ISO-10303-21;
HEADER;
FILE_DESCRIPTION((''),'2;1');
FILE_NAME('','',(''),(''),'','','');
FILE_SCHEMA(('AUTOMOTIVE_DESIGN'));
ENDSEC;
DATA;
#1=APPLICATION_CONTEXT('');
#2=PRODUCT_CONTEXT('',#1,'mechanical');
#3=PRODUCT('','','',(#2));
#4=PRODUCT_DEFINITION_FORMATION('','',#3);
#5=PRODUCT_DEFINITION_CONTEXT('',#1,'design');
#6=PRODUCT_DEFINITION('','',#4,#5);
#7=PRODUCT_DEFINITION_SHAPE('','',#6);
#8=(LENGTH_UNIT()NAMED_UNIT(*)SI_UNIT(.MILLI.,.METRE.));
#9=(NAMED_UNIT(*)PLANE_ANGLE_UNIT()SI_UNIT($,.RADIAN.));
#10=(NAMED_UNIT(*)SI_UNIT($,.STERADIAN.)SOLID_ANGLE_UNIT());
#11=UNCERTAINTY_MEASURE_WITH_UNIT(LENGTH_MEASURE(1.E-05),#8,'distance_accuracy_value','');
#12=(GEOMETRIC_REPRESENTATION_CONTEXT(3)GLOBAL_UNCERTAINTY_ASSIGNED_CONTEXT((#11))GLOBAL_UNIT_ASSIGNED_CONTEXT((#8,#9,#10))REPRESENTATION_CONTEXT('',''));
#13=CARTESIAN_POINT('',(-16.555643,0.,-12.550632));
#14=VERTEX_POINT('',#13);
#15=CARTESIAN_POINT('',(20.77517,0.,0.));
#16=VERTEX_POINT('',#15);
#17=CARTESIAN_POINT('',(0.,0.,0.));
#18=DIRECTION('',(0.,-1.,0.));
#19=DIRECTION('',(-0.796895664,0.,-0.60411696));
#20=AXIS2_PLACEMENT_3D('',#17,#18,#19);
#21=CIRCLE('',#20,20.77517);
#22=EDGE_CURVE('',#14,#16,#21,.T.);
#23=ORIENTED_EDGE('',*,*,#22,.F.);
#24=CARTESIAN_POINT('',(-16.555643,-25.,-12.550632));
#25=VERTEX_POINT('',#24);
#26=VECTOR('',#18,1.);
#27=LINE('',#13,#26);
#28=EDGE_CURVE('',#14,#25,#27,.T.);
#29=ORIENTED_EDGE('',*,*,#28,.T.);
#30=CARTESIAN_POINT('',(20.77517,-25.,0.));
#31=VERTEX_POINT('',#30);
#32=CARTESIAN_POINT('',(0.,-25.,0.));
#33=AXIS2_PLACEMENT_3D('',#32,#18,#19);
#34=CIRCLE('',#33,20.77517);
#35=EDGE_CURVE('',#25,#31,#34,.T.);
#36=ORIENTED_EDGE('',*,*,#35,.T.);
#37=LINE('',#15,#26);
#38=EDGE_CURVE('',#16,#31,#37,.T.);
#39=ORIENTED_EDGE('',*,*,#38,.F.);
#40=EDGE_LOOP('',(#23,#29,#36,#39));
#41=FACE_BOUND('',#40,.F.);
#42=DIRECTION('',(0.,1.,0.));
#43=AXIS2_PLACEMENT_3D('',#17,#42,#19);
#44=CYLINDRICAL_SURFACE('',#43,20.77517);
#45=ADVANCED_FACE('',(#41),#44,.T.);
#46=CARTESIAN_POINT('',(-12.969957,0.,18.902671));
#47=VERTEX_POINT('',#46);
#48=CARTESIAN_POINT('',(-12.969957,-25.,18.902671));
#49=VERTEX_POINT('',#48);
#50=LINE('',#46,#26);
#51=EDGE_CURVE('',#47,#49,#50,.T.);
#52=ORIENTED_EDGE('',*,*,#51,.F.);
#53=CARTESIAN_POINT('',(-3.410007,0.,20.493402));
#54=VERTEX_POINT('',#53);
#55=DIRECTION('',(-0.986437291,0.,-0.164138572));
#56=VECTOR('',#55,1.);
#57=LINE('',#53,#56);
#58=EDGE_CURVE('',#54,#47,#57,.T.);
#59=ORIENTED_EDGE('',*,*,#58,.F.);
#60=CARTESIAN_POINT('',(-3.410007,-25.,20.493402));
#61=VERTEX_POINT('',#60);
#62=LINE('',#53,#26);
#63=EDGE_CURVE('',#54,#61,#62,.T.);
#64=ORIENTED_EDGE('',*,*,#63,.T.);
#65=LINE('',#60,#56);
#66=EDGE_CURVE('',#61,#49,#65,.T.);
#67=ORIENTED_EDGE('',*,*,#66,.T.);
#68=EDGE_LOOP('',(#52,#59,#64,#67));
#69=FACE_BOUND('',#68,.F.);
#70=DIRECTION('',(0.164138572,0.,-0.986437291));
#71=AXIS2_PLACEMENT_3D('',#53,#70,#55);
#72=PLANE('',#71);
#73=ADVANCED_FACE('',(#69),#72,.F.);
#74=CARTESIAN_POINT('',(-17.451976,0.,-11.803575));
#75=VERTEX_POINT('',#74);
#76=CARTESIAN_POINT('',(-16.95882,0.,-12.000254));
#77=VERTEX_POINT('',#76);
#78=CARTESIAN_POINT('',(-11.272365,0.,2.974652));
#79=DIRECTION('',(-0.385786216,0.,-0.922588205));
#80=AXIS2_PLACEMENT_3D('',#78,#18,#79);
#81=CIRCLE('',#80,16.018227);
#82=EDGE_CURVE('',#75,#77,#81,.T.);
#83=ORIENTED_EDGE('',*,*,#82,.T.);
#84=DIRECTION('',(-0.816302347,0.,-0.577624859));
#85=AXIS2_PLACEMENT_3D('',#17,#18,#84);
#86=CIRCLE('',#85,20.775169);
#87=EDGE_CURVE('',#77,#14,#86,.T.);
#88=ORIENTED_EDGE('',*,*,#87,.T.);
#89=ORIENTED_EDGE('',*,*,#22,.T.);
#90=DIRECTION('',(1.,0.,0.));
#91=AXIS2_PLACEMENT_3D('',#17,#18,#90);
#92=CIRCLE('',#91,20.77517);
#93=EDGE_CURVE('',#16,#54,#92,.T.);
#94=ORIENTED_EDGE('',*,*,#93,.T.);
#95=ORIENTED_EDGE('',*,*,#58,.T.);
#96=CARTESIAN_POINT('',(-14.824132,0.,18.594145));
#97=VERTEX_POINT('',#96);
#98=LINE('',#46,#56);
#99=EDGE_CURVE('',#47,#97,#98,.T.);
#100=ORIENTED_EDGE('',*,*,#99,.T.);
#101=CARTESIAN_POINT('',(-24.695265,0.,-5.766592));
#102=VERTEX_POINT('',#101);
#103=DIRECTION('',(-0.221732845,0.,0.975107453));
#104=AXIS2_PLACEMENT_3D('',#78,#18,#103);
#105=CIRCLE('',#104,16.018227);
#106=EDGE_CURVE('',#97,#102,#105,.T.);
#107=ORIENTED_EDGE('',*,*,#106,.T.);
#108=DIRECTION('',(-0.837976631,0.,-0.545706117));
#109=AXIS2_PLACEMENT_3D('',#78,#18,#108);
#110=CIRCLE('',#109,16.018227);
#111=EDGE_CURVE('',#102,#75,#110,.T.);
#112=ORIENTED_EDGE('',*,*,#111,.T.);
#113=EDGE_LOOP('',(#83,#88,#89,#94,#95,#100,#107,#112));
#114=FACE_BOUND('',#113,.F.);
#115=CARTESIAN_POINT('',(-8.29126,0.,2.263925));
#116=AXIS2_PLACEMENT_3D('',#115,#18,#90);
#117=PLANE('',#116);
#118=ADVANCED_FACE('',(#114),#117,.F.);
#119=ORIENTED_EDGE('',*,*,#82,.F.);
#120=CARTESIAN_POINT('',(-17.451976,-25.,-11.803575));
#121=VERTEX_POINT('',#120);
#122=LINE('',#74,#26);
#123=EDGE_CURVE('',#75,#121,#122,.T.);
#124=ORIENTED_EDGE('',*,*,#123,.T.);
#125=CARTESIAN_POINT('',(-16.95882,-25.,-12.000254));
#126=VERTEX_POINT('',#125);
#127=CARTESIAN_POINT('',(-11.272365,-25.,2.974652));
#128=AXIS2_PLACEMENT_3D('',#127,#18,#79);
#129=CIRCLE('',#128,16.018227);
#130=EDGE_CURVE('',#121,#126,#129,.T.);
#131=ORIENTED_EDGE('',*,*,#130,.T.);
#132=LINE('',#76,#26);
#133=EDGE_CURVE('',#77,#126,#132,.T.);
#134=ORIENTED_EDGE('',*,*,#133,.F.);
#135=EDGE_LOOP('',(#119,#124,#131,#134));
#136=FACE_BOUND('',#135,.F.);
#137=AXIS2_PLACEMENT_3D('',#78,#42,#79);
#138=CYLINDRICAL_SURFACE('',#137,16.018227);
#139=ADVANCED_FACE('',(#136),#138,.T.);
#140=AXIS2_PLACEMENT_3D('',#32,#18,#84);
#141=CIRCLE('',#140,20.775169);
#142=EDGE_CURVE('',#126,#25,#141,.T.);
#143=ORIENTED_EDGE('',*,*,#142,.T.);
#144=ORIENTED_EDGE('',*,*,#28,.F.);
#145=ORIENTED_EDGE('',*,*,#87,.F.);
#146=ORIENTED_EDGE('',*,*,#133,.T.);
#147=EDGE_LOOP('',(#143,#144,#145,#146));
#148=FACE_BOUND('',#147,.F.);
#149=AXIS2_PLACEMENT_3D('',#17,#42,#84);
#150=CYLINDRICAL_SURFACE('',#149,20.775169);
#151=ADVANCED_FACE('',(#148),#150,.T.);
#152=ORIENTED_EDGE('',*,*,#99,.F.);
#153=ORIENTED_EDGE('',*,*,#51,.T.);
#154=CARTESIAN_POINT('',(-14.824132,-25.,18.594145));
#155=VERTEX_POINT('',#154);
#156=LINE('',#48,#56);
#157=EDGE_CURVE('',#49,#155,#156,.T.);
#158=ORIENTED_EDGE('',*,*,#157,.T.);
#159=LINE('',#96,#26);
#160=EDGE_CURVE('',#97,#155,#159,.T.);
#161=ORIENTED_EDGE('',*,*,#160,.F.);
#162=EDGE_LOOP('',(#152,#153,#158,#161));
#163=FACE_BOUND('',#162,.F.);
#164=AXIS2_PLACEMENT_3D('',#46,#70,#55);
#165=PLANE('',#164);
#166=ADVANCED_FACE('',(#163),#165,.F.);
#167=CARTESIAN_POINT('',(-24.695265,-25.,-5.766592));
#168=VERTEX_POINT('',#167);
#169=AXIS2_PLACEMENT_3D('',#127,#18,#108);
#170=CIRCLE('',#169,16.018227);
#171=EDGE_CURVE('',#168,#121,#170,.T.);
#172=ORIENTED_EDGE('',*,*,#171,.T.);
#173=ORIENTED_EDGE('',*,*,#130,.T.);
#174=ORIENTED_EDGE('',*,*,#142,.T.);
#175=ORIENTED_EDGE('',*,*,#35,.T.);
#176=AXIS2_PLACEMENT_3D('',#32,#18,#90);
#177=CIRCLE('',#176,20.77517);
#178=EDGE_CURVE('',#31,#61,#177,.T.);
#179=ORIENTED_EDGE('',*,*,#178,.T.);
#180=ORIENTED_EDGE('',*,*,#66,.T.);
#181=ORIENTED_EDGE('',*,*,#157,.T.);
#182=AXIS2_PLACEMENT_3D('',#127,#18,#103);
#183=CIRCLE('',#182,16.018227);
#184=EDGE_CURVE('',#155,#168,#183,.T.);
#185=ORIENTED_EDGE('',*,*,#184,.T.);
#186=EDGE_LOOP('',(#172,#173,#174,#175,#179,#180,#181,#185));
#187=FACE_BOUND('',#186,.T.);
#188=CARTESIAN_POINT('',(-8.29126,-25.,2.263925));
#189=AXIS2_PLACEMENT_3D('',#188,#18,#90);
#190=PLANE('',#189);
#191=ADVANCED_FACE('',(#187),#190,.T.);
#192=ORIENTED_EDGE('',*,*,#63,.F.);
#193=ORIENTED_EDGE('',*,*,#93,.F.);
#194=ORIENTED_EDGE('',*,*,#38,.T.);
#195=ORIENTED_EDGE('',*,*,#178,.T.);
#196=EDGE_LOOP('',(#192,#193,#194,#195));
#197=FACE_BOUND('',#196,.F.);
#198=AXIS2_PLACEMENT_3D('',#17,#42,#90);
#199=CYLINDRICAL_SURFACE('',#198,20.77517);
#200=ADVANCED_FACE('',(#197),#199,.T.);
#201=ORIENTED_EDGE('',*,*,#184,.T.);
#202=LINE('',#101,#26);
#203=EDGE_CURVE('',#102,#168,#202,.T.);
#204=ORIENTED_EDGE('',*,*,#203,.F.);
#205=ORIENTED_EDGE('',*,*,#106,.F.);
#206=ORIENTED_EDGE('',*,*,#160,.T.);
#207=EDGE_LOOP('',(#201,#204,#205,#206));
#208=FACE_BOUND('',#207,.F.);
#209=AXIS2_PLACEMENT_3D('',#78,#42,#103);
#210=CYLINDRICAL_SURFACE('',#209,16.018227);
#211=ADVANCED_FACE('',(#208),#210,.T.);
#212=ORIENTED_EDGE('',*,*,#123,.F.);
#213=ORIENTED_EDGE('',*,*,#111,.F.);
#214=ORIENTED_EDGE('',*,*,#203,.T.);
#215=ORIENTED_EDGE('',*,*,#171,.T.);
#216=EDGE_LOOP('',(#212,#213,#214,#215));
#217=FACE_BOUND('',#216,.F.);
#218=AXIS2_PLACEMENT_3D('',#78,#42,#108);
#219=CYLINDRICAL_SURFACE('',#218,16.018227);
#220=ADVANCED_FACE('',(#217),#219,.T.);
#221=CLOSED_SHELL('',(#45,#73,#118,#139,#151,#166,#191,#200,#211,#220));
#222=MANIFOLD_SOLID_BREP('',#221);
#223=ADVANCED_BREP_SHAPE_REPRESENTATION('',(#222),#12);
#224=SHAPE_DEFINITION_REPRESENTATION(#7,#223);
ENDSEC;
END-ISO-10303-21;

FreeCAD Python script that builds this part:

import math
import FreeCAD as App
import Part
import Sketcher

doc = App.newDocument("Part")
body = doc.addObject("PartDesign::Body", "Body")

# Sketch on XZ plane
sketch1 = body.newObject("Sketcher::SketchObject", "Sketch")
sketch1.AttachmentSupport = (doc.getObject("XZ_Plane"), [""])
sketch1.MapMode = "FlatFace"
sketch1.addGeometry(Part.ArcOfCircle(Part.Circle(App.Vector(0, 0, 0), App.Vector(0, 0, 1), 20.8), math.radians(-144.72), math.radians(-142.83)), False)
sketch1.addGeometry(Part.ArcOfCircle(Part.Circle(App.Vector(0, 0, 0), App.Vector(0, 0, 1), 20.8), math.radians(-143), math.radians(0)), False)
sketch1.addGeometry(Part.ArcOfCircle(Part.Circle(App.Vector(0, 0, 0), App.Vector(0, 0, 1), 20.8), math.radians(0), math.radians(99)), False)
sketch1.addGeometry(Part.LineSegment(App.Vector(-3.4, 20.5, 0), App.Vector(-13, 18.9, 0)), False)
sketch1.addGeometry(Part.LineSegment(App.Vector(-13, 18.9, 0), App.Vector(-14.8, 18.6, 0)), False)
sketch1.addGeometry(Part.ArcOfCircle(Part.Circle(App.Vector(-11.3, 3, 0), App.Vector(0, 0, 1), 16), math.radians(103), math.radians(213)), False)
sketch1.addGeometry(Part.ArcOfCircle(Part.Circle(App.Vector(-11.3, 3, 0), App.Vector(0, 0, 1), 16), math.radians(-147), math.radians(-113)), False)
sketch1.addGeometry(Part.ArcOfCircle(Part.Circle(App.Vector(-11.3, 3, 0), App.Vector(0, 0, 1), 16), math.radians(-112.69), math.radians(-110.79)), False)
sketch1.addConstraint(Sketcher.Constraint("Tangent", 0, 2, 1, 1))
sketch1.addConstraint(Sketcher.Constraint("Tangent", 1, 2, 2, 1))
sketch1.addConstraint(Sketcher.Constraint("Tangent", 2, 2, 3, 1))
sketch1.addConstraint(Sketcher.Constraint("Coincident", 3, 2, 4, 1))
sketch1.addConstraint(Sketcher.Constraint("Coincident", 4, 2, 5, 1))
sketch1.addConstraint(Sketcher.Constraint("Tangent", 5, 2, 6, 1))
sketch1.addConstraint(Sketcher.Constraint("Tangent", 6, 2, 7, 1))
sketch1.addConstraint(Sketcher.Constraint("Coincident", 7, 2, 0, 1))
sketch1.addConstraint(Sketcher.Constraint("Coincident", 0, 3, -1, 1))
sketch1.addConstraint(Sketcher.Constraint("Coincident", 2, 3, -1, 1))
sketch1.addConstraint(Sketcher.Constraint("Coincident", 7, 3, 5, 3))
sketch1.addConstraint(Sketcher.Constraint("PointOnObject", 1, 2, -1))
sketch1.addConstraint(Sketcher.Constraint("Parallel", 3, 4))
sketch1.addConstraint(Sketcher.Constraint("Radius", 0, 20.775169))
sketch1.addConstraint(Sketcher.Constraint("Radius", 5, 16.018227))
sketch1.addConstraint(Sketcher.Constraint("DistanceX", 5, 2, 7, 3, 13.4229))
sketch1.addConstraint(Sketcher.Constraint("Distance", 4, 1.879669))
sketch1.addConstraint(Sketcher.Constraint("DistanceY", -1, 1, 7, 3, 2.974652))
sketch1.addConstraint(Sketcher.Constraint("DistanceY", -1, 1, 3, 2, 18.902671))
sketch1.addConstraint(Sketcher.Constraint("DistanceX", 7, 2, -1, 1, 16.95882))
sketch1.addConstraint(Sketcher.Constraint("DistanceY", 0, 2, 5, 2, 6.78404))
sketch1.addConstraint(Sketcher.Constraint("DistanceX", 5, 2, 6, 2, 7.243289))
pad1 = body.newObject("PartDesign::Pad", "Pad")
pad1.Profile = sketch1
pad1.Length = 25

doc.recompute()
